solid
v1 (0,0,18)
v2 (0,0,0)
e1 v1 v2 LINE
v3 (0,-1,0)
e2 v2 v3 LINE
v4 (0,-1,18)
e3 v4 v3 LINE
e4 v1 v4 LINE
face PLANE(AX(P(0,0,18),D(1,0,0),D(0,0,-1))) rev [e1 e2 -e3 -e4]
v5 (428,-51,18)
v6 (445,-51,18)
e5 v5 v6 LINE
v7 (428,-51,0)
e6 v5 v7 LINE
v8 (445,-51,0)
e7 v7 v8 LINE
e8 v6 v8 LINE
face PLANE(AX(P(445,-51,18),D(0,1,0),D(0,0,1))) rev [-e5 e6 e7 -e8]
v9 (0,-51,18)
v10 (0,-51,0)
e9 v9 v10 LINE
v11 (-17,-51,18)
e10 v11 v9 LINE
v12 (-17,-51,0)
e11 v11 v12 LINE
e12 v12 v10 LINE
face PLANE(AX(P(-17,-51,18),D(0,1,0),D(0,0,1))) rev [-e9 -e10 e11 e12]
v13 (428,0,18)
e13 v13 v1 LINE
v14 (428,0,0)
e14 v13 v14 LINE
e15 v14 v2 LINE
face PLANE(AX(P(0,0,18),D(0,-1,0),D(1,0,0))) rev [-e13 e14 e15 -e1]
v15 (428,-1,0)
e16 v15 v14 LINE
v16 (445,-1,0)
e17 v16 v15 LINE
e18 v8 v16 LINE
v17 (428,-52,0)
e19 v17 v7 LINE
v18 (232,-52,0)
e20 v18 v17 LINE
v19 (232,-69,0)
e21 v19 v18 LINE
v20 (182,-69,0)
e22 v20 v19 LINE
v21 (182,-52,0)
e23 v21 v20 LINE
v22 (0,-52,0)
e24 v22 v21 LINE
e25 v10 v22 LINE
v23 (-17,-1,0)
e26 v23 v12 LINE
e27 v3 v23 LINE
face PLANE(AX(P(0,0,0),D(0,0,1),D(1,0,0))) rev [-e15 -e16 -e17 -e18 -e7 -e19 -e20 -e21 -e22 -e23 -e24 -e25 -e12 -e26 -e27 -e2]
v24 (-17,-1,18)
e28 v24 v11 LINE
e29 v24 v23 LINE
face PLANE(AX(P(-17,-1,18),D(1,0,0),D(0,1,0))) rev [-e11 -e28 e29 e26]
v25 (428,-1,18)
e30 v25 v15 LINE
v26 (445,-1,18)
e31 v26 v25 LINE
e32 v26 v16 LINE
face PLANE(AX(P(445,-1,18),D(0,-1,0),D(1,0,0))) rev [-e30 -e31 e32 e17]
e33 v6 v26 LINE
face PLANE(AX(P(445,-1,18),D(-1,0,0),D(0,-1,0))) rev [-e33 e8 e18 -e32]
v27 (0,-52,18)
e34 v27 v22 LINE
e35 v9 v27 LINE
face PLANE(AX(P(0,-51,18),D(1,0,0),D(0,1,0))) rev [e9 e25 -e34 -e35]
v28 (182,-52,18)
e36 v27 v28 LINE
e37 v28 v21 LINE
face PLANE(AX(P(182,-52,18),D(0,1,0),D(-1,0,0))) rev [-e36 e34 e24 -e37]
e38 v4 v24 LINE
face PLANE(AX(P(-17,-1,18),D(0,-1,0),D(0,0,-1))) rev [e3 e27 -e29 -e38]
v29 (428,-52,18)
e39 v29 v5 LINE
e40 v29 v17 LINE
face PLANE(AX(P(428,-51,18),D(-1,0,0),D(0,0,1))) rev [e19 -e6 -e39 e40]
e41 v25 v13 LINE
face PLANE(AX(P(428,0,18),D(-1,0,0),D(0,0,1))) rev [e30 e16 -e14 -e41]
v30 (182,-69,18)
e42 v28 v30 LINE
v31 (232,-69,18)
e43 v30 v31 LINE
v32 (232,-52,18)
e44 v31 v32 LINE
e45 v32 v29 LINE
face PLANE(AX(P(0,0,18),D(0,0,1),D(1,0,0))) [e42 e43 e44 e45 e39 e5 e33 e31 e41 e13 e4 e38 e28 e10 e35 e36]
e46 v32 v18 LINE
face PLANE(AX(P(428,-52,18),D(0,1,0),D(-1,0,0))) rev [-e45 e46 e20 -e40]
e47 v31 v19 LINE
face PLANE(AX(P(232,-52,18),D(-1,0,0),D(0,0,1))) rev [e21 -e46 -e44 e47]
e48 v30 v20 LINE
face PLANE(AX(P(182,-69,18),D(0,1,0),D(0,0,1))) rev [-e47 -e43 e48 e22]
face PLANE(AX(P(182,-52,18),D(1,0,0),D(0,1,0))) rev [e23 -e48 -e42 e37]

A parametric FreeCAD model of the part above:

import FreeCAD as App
import Part
import Sketcher
from FreeCAD import Vector
Q = App.Units.Quantity


def add_polygon(sketch, points):
    """Adds a closed chain of lines whose ends are joined by coincident constraints."""
    first, n = sketch.GeometryCount, len(points)
    for a, b in zip(points, points[1:] + points[:1]):
        sketch.addGeometry(Part.LineSegment(App.Vector(*a, 0), App.Vector(*b, 0)), False)
    for i in range(n):
        sketch.addConstraint(Sketcher.Constraint("Coincident", first + i, 2, first + (i + 1) % n, 1))

doc = App.newDocument("Part")
body = doc.addObject("PartDesign::Body", "Body")

sketch1 = doc.addObject("Sketcher::SketchObject", "Sketch")
body.addObject(sketch1)
sketch1.AttachmentSupport = (doc.XY_Plane, [""])
sketch1.MapMode = "FlatFace"
add_polygon(sketch1, [(428, 0), (0, 0), (0, -1), (-17, -1), (-17, -51), (0, -51), (0, -52), (182, -52), (182, -69), (232, -69), (232, -52), (428, -52), (428, -51), (445, -51), (445, -1), (428, -1)])
sketch1.addConstraint([
    Sketcher.Constraint("Horizontal", 0),
    Sketcher.Constraint("Vertical", 1),
    Sketcher.Constraint("Horizontal", 2),
    Sketcher.Constraint("Vertical", 3),
    Sketcher.Constraint("Horizontal", 4),
    Sketcher.Constraint("Vertical", 5),
    Sketcher.Constraint("Horizontal", 6),
    Sketcher.Constraint("Vertical", 7),
    Sketcher.Constraint("Horizontal", 8),
    Sketcher.Constraint("Vertical", 9),
    Sketcher.Constraint("Horizontal", 10),
    Sketcher.Constraint("Vertical", 11),
    Sketcher.Constraint("Horizontal", 12),
    Sketcher.Constraint("Vertical", 13),
    Sketcher.Constraint("Horizontal", 14),
    Sketcher.Constraint("Vertical", 15),
    Sketcher.Constraint("Coincident", 0, 2, -1, 1),
    Sketcher.Constraint("PointOnObject", 4, 2, -2),
    Sketcher.Constraint("Horizontal", 6, 2, 9, 2),
    Sketcher.Constraint("Horizontal", 4, 2, 11, 2),
    Sketcher.Constraint("Horizontal", 2, 2, 13, 2),
    Sketcher.Constraint("Vertical", 11, 2, 14, 2),
    Sketcher.Constraint("Equal", 4, 12),
    Sketcher.Constraint("Equal", 8, 3),
    Sketcher.Constraint("Equal", 1, 5),
    Sketcher.Constraint("Equal", 14, 7),
    Sketcher.Constraint("DistanceX", 0, 2, 0, 1, Q("428 mm")),
    Sketcher.Constraint("DistanceX", 2, 2, 2, 1, Q("17 mm")),
    Sketcher.Constraint("DistanceX", 6, 1, 6, 2, Q("182 mm")),
    Sketcher.Constraint("DistanceX", 8, 1, 8, 2, Q("50 mm")),
    Sketcher.Constraint("DistanceY", 1, 2, 1, 1, Q("1 mm")),
])
pad1 = doc.addObject("PartDesign::Pad", "Pad")
body.addObject(pad1)
pad1.Profile = sketch1
pad1.Length = 18

doc.recompute()
